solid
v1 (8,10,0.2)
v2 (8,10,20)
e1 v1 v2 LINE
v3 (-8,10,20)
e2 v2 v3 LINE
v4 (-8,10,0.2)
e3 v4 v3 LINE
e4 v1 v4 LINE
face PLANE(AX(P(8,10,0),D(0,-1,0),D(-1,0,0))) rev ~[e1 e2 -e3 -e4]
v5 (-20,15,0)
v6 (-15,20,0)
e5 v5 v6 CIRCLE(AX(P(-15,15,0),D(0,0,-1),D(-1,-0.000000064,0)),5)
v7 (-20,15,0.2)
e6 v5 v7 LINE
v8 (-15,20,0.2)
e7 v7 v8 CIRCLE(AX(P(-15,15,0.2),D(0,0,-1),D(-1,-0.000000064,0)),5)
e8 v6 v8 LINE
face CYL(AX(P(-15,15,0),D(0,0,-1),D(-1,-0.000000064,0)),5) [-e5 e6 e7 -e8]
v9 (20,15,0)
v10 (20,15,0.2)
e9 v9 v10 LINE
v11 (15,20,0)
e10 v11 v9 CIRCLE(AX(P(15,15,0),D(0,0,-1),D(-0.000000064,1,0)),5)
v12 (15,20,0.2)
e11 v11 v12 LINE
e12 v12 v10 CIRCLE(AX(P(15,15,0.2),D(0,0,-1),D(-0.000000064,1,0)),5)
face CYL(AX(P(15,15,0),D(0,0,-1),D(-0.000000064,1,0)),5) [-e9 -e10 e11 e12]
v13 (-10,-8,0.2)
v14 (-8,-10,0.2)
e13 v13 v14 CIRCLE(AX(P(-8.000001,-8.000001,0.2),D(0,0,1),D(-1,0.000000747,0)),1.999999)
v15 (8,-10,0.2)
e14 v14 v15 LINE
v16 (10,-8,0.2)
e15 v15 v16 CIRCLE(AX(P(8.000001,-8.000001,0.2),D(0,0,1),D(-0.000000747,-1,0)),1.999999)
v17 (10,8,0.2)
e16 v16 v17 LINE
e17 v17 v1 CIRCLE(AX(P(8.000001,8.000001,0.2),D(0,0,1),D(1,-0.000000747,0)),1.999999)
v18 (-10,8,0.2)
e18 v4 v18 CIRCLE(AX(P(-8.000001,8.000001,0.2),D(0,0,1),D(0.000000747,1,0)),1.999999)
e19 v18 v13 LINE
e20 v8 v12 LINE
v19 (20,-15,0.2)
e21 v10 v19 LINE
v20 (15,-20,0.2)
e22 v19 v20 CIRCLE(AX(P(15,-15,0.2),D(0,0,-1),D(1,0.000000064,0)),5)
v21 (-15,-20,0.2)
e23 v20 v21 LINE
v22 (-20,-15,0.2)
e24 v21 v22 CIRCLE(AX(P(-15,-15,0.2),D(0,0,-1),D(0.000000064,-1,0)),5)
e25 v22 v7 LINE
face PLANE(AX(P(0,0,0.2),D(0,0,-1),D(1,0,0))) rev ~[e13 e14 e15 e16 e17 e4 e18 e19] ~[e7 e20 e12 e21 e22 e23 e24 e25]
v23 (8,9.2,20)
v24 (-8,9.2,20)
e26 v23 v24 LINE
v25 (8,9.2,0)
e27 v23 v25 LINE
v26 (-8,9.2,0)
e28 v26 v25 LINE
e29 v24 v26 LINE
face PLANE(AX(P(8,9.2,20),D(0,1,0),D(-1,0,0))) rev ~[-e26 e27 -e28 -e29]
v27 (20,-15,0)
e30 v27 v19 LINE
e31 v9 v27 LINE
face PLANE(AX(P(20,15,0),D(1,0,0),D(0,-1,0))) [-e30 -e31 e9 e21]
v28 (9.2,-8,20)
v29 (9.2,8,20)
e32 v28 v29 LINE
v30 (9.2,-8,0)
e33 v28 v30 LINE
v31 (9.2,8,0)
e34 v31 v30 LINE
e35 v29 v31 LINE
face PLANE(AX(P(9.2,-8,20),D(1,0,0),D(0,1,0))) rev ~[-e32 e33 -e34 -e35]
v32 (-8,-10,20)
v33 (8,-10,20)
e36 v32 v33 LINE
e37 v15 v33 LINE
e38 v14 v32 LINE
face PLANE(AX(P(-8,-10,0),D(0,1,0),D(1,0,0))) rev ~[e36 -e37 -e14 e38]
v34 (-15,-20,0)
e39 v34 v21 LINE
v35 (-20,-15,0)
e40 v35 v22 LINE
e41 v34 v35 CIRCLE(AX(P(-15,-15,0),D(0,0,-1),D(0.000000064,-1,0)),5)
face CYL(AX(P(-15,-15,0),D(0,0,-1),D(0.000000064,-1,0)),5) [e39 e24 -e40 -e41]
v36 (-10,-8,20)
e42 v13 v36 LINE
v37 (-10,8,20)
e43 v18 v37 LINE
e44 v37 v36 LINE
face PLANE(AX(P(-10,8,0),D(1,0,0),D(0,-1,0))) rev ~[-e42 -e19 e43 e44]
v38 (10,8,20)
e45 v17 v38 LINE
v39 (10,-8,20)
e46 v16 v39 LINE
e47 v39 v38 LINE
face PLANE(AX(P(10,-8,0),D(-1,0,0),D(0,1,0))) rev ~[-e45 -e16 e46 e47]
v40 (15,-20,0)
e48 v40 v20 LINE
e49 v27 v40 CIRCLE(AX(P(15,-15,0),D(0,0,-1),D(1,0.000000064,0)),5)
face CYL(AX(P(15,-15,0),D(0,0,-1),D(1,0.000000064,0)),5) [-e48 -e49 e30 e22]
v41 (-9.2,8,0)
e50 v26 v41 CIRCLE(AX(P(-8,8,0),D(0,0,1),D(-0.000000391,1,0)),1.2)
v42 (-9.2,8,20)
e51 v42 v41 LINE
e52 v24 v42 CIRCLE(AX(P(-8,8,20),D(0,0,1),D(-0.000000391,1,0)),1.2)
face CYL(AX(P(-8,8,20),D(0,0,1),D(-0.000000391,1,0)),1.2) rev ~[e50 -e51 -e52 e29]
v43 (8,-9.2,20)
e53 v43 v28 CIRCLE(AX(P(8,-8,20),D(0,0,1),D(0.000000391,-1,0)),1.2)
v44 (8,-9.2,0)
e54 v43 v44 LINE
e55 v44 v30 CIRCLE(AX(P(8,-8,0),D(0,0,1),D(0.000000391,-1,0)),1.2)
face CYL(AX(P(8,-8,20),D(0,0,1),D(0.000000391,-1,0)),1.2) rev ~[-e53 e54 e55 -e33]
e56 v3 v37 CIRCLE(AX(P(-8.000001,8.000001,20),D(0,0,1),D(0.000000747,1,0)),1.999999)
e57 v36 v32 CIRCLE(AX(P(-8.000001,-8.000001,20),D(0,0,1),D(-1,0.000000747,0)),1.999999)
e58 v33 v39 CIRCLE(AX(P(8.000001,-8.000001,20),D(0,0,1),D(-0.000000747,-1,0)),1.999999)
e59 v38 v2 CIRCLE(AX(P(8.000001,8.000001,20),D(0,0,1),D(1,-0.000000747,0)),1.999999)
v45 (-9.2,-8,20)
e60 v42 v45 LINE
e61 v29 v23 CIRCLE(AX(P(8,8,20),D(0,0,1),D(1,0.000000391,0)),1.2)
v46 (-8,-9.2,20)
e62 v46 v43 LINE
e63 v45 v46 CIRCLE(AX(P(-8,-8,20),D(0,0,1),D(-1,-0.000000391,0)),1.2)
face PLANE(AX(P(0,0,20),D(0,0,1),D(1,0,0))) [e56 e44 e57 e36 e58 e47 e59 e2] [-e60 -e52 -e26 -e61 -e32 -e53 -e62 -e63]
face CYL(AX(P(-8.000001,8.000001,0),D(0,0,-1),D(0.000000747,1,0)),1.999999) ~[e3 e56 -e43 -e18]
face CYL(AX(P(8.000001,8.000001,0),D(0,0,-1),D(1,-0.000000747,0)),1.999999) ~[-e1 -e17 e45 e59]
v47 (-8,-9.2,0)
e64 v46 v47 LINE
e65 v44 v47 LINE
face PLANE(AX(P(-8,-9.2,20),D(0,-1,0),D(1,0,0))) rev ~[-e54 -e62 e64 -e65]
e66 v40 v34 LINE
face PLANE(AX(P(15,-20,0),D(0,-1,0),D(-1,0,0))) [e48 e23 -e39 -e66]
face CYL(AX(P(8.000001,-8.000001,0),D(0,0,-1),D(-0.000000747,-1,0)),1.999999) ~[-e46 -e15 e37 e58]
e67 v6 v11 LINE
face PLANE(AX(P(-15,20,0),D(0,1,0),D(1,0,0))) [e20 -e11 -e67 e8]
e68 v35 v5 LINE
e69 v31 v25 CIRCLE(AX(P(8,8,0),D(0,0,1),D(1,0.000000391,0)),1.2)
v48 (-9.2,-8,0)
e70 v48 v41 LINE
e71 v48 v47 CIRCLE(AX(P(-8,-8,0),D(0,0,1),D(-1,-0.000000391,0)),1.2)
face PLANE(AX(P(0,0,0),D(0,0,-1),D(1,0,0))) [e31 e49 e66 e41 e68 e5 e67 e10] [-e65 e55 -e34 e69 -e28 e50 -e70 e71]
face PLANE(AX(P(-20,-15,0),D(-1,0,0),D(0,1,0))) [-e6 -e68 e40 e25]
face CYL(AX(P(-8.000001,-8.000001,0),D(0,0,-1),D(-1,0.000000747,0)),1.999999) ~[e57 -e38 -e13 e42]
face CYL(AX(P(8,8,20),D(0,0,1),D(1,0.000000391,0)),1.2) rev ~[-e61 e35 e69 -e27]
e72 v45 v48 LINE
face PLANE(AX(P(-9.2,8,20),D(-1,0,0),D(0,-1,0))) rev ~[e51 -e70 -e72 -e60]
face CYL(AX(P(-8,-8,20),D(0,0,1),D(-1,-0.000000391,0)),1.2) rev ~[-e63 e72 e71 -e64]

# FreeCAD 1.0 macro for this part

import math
import FreeCAD as App
import Part
import Sketcher

V = App.Vector
Q = App.Units.Quantity

doc = App.newDocument("Part")
params = doc.addObject("Spreadsheet::Sheet", "Params")
for row, (alias, value) in enumerate([
    ("sketch1_radius", "1.999999 mm"),
    ("sketch1_width", "16 mm"),
    ("pad1_length", "20 mm"),
    ("sketch2_radius", "5 mm"),
    ("sketch2_radius2", "1.999999 mm"),
    ("sketch2_width", "30 mm"),
    ("sketch2_width2", "16 mm"),
    ("pad2_length", "0.2 mm"),
    ("sketch3_radius", "1.2 mm"),
    ("sketch3_width", "16 mm"),
], start=1):
    params.set(f"A{row}", alias)
    params.set(f"B{row}", "=" + value)
    params.setAlias(f"B{row}", alias)

body = doc.addObject("PartDesign::Body", "Body")

sketch1 = body.newObject("Sketcher::SketchObject", "Sketch")
sketch1.AttachmentSupport = (doc.getObject("XY_Plane"), [""])
sketch1.MapMode = "FlatFace"
sketch1.addGeometry(Part.LineSegment(V(8, 10, 0), V(-8, 10, 0)), False)
sketch1.addGeometry(Part.ArcOfCircle(Part.Circle(V(-8, 8, 0), V(0, 0, 1), 2), math.radians(90), math.radians(180)), False)
sketch1.addGeometry(Part.LineSegment(V(-10, 8, 0), V(-10, -8, 0)), False)
sketch1.addGeometry(Part.ArcOfCircle(Part.Circle(V(-8, -8, 0), V(0, 0, 1), 2), math.radians(180), math.radians(270)), False)
sketch1.addGeometry(Part.LineSegment(V(-8, -10, 0), V(8, -10, 0)), False)
sketch1.addGeometry(Part.ArcOfCircle(Part.Circle(V(8, -8, 0), V(0, 0, 1), 2), math.radians(-90), math.radians(0)), False)
sketch1.addGeometry(Part.LineSegment(V(10, -8, 0), V(10, 8, 0)), False)
sketch1.addGeometry(Part.ArcOfCircle(Part.Circle(V(8, 8, 0), V(0, 0, 1), 2), math.radians(0), math.radians(90)), False)
sketch1.addConstraint(Sketcher.Constraint("Tangent", 0, 2, 1, 1))
sketch1.addConstraint(Sketcher.Constraint("Tangent", 1, 2, 2, 1))
sketch1.addConstraint(Sketcher.Constraint("Tangent", 2, 2, 3, 1))
sketch1.addConstraint(Sketcher.Constraint("Tangent", 3, 2, 4, 1))
sketch1.addConstraint(Sketcher.Constraint("Tangent", 4, 2, 5, 1))
sketch1.addConstraint(Sketcher.Constraint("Tangent", 5, 2, 6, 1))
sketch1.addConstraint(Sketcher.Constraint("Tangent", 6, 2, 7, 1))
sketch1.addConstraint(Sketcher.Constraint("Tangent", 7, 2, 0, 1))
sketch1.addConstraint(Sketcher.Constraint("Horizontal", 0))
sketch1.addConstraint(Sketcher.Constraint("Vertical", 2))
sketch1.addConstraint(Sketcher.Constraint("Horizontal", 4))
sketch1.addConstraint(Sketcher.Constraint("Vertical", 6))
sketch1.addConstraint(Sketcher.Constraint("Equal", 1, 3))
sketch1.addConstraint(Sketcher.Constraint("Equal", 3, 5))
sketch1.addConstraint(Sketcher.Constraint("Equal", 5, 7))
sketch1.addConstraint(Sketcher.Constraint("Symmetric", 1, 3, 5, 3, -1, 1))
sketch1.addConstraint(Sketcher.Constraint("Equal", 4, 2))
sketch1.addConstraint(Sketcher.Constraint("Radius", 1, Q("1.999999 mm")))
sketch1.addConstraint(Sketcher.Constraint("DistanceX", 0, 2, 0, 1, Q("16 mm")))
sketch1.setExpression("Constraints[17]", "Params.sketch1_radius")
sketch1.setExpression("Constraints[18]", "Params.sketch1_width")
pad1 = body.newObject("PartDesign::Pad", "Pad")
pad1.Profile = sketch1
pad1.setExpression("Length", "Params.pad1_length")

sketch2 = body.newObject("Sketcher::SketchObject", "Sketch001")
sketch2.AttachmentSupport = (doc.getObject("XY_Plane"), [""])
sketch2.MapMode = "FlatFace"
sketch2.addGeometry(Part.LineSegment(V(15, -20, 0), V(-15, -20, 0)), False)
sketch2.addGeometry(Part.ArcOfCircle(Part.Circle(V(-15, -15, 0), V(0, 0, 1), 5), math.radians(180), math.radians(270)), False)
sketch2.addGeometry(Part.LineSegment(V(-20, -15, 0), V(-20, 15, 0)), False)
sketch2.addGeometry(Part.ArcOfCircle(Part.Circle(V(-15, 15, 0), V(0, 0, 1), 5), math.radians(90), math.radians(180)), False)
sketch2.addGeometry(Part.LineSegment(V(-15, 20, 0), V(15, 20, 0)), False)
sketch2.addGeometry(Part.ArcOfCircle(Part.Circle(V(15, 15, 0), V(0, 0, 1), 5), math.radians(0), math.radians(90)), False)
sketch2.addGeometry(Part.LineSegment(V(20, 15, 0), V(20, -15, 0)), False)
sketch2.addGeometry(Part.ArcOfCircle(Part.Circle(V(15, -15, 0), V(0, 0, 1), 5), math.radians(-90), math.radians(0)), False)
sketch2.addGeometry(Part.ArcOfCircle(Part.Circle(V(8, 8, 0), V(0, 0, 1), 2), math.radians(0), math.radians(90)), False)
sketch2.addGeometry(Part.LineSegment(V(8, 10, 0), V(-8, 10, 0)), False)
sketch2.addGeometry(Part.ArcOfCircle(Part.Circle(V(-8, 8, 0), V(0, 0, 1), 2), math.radians(90), math.radians(180)), False)
sketch2.addGeometry(Part.LineSegment(V(-10, 8, 0), V(-10, -8, 0)), False)
sketch2.addGeometry(Part.ArcOfCircle(Part.Circle(V(-8, -8, 0), V(0, 0, 1), 2), math.radians(180), math.radians(270)), False)
sketch2.addGeometry(Part.LineSegment(V(-8, -10, 0), V(8, -10, 0)), False)
sketch2.addGeometry(Part.ArcOfCircle(Part.Circle(V(8, -8, 0), V(0, 0, 1), 2), math.radians(-90), math.radians(0)), False)
sketch2.addGeometry(Part.LineSegment(V(10, -8, 0), V(10, 8, 0)), False)
sketch2.addConstraint(Sketcher.Constraint("Tangent", 0, 2, 1, 2))
sketch2.addConstraint(Sketcher.Constraint("Tangent", 1, 1, 2, 1))
sketch2.addConstraint(Sketcher.Constraint("Tangent", 2, 2, 3, 2))
sketch2.addConstraint(Sketcher.Constraint("Tangent", 3, 1, 4, 1))
sketch2.addConstraint(Sketcher.Constraint("Tangent", 4, 2, 5, 2))
sketch2.addConstraint(Sketcher.Constraint("Tangent", 5, 1, 6, 1))
sketch2.addConstraint(Sketcher.Constraint("Tangent", 6, 2, 7, 2))
sketch2.addConstraint(Sketcher.Constraint("Tangent", 7, 1, 0, 1))
sketch2.addConstraint(Sketcher.Constraint("Tangent", 8, 2, 9, 1))
sketch2.addConstraint(Sketcher.Constraint("Tangent", 9, 2, 10, 1))
sketch2.addConstraint(Sketcher.Constraint("Tangent", 10, 2, 11, 1))
sketch2.addConstraint(Sketcher.Constraint("Tangent", 11, 2, 12, 1))
sketch2.addConstraint(Sketcher.Constraint("Tangent", 12, 2, 13, 1))
sketch2.addConstraint(Sketcher.Constraint("Tangent", 13, 2, 14, 1))
sketch2.addConstraint(Sketcher.Constraint("Tangent", 14, 2, 15, 1))
sketch2.addConstraint(Sketcher.Constraint("Tangent", 15, 2, 8, 1))
sketch2.addConstraint(Sketcher.Constraint("Horizontal", 0))
sketch2.addConstraint(Sketcher.Constraint("Vertical", 2))
sketch2.addConstraint(Sketcher.Constraint("Horizontal", 4))
sketch2.addConstraint(Sketcher.Constraint("Vertical", 6))
sketch2.addConstraint(Sketcher.Constraint("Horizontal", 9))
sketch2.addConstraint(Sketcher.Constraint("Vertical", 11))
sketch2.addConstraint(Sketcher.Constraint("Horizontal", 13))
sketch2.addConstraint(Sketcher.Constraint("Vertical", 15))
sketch2.addConstraint(Sketcher.Constraint("Equal", 1, 3))
sketch2.addConstraint(Sketcher.Constraint("Equal", 3, 5))
sketch2.addConstraint(Sketcher.Constraint("Equal", 5, 7))
sketch2.addConstraint(Sketcher.Constraint("Equal", 8, 10))
sketch2.addConstraint(Sketcher.Constraint("Equal", 10, 12))
sketch2.addConstraint(Sketcher.Constraint("Equal", 12, 14))
sketch2.addConstraint(Sketcher.Constraint("Symmetric", 1, 3, 5, 3, -1, 1))
sketch2.addConstraint(Sketcher.Constraint("Symmetric", 8, 3, 12, 3, -1, 1))
sketch2.addConstraint(Sketcher.Constraint("Equal", 4, 2))
sketch2.addConstraint(Sketcher.Constraint("Equal", 13, 11))
sketch2.addConstraint(Sketcher.Constraint("Radius", 1, Q("5 mm")))
sketch2.addConstraint(Sketcher.Constraint("Radius", 8, Q("1.999999 mm")))
sketch2.addConstraint(Sketcher.Constraint("DistanceX", 0, 2, 0, 1, Q("30 mm")))
sketch2.addConstraint(Sketcher.Constraint("DistanceX", 9, 2, 9, 1, Q("16 mm")))
sketch2.setExpression("Constraints[34]", "Params.sketch2_radius")
sketch2.setExpression("Constraints[35]", "Params.sketch2_radius2")
sketch2.setExpression("Constraints[36]", "Params.sketch2_width")
sketch2.setExpression("Constraints[37]", "Params.sketch2_width2")
pad2 = body.newObject("PartDesign::Pad", "Pad001")
pad2.Profile = sketch2
pad2.setExpression("Length", "Params.pad2_length")

sketch3 = body.newObject("Sketcher::SketchObject", "Sketch002")
sketch3.AttachmentSupport = (doc.getObject("XY_Plane"), [""])
sketch3.MapMode = "FlatFace"
sketch3.AttachmentOffset = App.Placement(V(0, 0, 20), App.Rotation())
sketch3.addGeometry(Part.ArcOfCircle(Part.Circle(V(-8, 8, 0), V(0, 0, 1), 1.2), math.radians(90), math.radians(180)), False)
sketch3.addGeometry(Part.LineSegment(V(-9.2, 8, 0), V(-9.2, -8, 0)), False)
sketch3.addGeometry(Part.ArcOfCircle(Part.Circle(V(-8, -8, 0), V(0, 0, 1), 1.2), math.radians(-180), math.radians(-90)), False)
sketch3.addGeometry(Part.LineSegment(V(-8, -9.2, 0), V(8, -9.2, 0)), False)
sketch3.addGeometry(Part.ArcOfCircle(Part.Circle(V(8, -8, 0), V(0, 0, 1), 1.2), math.radians(-90), math.radians(0)), False)
sketch3.addGeometry(Part.LineSegment(V(9.2, -8, 0), V(9.2, 8, 0)), False)
sketch3.addGeometry(Part.ArcOfCircle(Part.Circle(V(8, 8, 0), V(0, 0, 1), 1.2), math.radians(0), math.radians(90)), False)
sketch3.addGeometry(Part.LineSegment(V(8, 9.2, 0), V(-8, 9.2, 0)), False)
sketch3.addConstraint(Sketcher.Constraint("Tangent", 0, 2, 1, 1))
sketch3.addConstraint(Sketcher.Constraint("Tangent", 1, 2, 2, 1))
sketch3.addConstraint(Sketcher.Constraint("Tangent", 2, 2, 3, 1))
sketch3.addConstraint(Sketcher.Constraint("Tangent", 3, 2, 4, 1))
sketch3.addConstraint(Sketcher.Constraint("Tangent", 4, 2, 5, 1))
sketch3.addConstraint(Sketcher.Constraint("Tangent", 5, 2, 6, 1))
sketch3.addConstraint(Sketcher.Constraint("Tangent", 6, 2, 7, 1))
sketch3.addConstraint(Sketcher.Constraint("Tangent", 7, 2, 0, 1))
sketch3.addConstraint(Sketcher.Constraint("Vertical", 1))
sketch3.addConstraint(Sketcher.Constraint("Horizontal", 3))
sketch3.addConstraint(Sketcher.Constraint("Vertical", 5))
sketch3.addConstraint(Sketcher.Constraint("Horizontal", 7))
sketch3.addConstraint(Sketcher.Constraint("Equal", 0, 2))
sketch3.addConstraint(Sketcher.Constraint("Equal", 2, 4))
sketch3.addConstraint(Sketcher.Constraint("Equal", 4, 6))
sketch3.addConstraint(Sketcher.Constraint("Symmetric", 0, 3, 4, 3, -1, 1))
sketch3.addConstraint(Sketcher.Constraint("Equal", 7, 1))
sketch3.addConstraint(Sketcher.Constraint("Radius", 0, Q("1.2 mm")))
sketch3.addConstraint(Sketcher.Constraint("DistanceX", 3, 1, 3, 2, Q("16 mm")))
sketch3.setExpression("Constraints[17]", "Params.sketch3_radius")
sketch3.setExpression("Constraints[18]", "Params.sketch3_width")
pocket1 = body.newObject("PartDesign::Pocket", "Pocket")
pocket1.Profile = sketch3
pocket1.Type = "ThroughAll"

doc.recompute()
